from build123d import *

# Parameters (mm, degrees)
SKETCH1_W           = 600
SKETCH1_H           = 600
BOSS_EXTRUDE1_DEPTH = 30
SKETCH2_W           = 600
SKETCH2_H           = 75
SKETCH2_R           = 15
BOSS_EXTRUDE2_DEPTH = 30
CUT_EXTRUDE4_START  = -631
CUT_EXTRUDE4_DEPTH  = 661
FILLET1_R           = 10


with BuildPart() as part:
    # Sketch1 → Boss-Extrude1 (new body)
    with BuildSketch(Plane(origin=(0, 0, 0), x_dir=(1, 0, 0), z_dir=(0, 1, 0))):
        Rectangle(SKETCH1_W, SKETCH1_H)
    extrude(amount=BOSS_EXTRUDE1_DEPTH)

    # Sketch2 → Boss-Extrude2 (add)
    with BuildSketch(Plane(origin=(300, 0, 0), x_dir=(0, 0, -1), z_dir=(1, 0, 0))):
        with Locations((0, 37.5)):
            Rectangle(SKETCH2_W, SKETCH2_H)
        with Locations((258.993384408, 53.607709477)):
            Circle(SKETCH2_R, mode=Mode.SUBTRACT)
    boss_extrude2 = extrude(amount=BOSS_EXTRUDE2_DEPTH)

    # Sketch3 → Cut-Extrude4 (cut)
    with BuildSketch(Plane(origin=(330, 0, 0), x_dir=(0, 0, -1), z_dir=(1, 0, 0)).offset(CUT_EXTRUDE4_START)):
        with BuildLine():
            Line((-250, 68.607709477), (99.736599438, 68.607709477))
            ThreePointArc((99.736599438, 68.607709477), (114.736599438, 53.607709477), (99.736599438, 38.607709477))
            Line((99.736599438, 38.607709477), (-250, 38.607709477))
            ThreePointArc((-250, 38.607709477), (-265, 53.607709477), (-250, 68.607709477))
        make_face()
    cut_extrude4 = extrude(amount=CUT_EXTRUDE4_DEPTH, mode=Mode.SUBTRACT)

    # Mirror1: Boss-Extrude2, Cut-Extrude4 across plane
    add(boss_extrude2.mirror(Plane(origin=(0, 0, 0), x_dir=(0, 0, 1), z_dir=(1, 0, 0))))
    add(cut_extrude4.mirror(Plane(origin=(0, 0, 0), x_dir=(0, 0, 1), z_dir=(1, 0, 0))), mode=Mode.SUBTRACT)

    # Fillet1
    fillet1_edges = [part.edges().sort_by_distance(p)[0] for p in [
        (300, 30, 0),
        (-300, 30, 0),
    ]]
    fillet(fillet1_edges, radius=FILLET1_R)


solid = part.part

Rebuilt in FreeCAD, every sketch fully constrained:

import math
import FreeCAD as App
import Part
import Sketcher
Q = App.Units.Quantity


def edges_at(feature, points):
    """Names of the edges that pass closest to the given points."""
    edges = feature.Shape.Edges
    near = lambda p: min(range(len(edges)), key=lambda i: edges[i].distToShape(Part.Vertex(*p))[0])
    return sorted({f"Edge{near(p) + 1}" for p in points})


def add_polygon(sketch, points):
    """Adds a closed chain of lines whose ends are joined by coincident constraints."""
    first, n = sketch.GeometryCount, len(points)
    for a, b in zip(points, points[1:] + points[:1]):
        sketch.addGeometry(Part.LineSegment(App.Vector(*a, 0), App.Vector(*b, 0)), False)
    for i in range(n):
        sketch.addConstraint(Sketcher.Constraint("Coincident", first + i, 2, first + (i + 1) % n, 1))

doc = App.newDocument("Part")
params = doc.addObject("Spreadsheet::Sheet", "Params")
for row, (alias, value) in enumerate([
    ("sketch1_width", "600 mm"),
    ("pad1_length", "30 mm"),
    ("sketch2_diameter", "30 mm"),
    ("sketch2_width", "75 mm"),
    ("sketch2_height", "600 mm"),
    ("pad2_length", "30 mm"),
    ("sketch3_radius", "15 mm"),
    ("pocket1_length", "661 mm"),
    ("fillet_radius", "10 mm"),
], start=1):
    params.set(f"A{row}", alias)
    params.set(f"B{row}", "=" + value)
    params.setAlias(f"B{row}", alias)

body = doc.addObject("PartDesign::Body", "Body")

# Sketch on XZ plane
sketch1 = doc.addObject("Sketcher::SketchObject", "Sketch")
body.addObject(sketch1)
sketch1.AttachmentSupport = (doc.XZ_Plane, [""])
sketch1.MapMode = "FlatFace"
add_polygon(sketch1, [(-300, -300), (-300, 300), (300, 300), (300, -300)])  # lines 0-3
sketch1.addConstraint(Sketcher.Constraint("Vertical", 0))
sketch1.addConstraint(Sketcher.Constraint("Horizontal", 1))
sketch1.addConstraint(Sketcher.Constraint("Vertical", 2))
sketch1.addConstraint(Sketcher.Constraint("Horizontal", 3))
sketch1.addConstraint(Sketcher.Constraint("Symmetric", 0, 2, 2, 2, -1, 1))
sketch1.addConstraint(Sketcher.Constraint("Equal", 3, 0))
sketch1.addConstraint(Sketcher.Constraint("DistanceX", 1, 1, 1, 2, Q("600 mm")))
sketch1.setExpression("Constraints[10]", "Params.sketch1_width")
pad1 = doc.addObject("PartDesign::Pad", "Pad")
body.addObject(pad1)
pad1.Profile = sketch1
pad1.setExpression("Length", "Params.pad1_length")
pad1.Reversed = True

# Sketch on YZ plane
sketch2 = doc.addObject("Sketcher::SketchObject", "Sketch001")
body.addObject(sketch2)
sketch2.AttachmentSupport = (doc.YZ_Plane, [""])
sketch2.MapMode = "FlatFace"
sketch2.AttachmentOffset = App.Placement(App.Vector(0, 0, 300), App.Rotation())
add_polygon(sketch2, [(75, 300), (0, 300), (0, -300), (75, -300)])  # lines 0-3
sketch2.addGeometry(Part.Circle(App.Vector(54, -259, 0), App.Vector(0, 0, 1), 15), False)  # 4
sketch2.addConstraint(Sketcher.Constraint("Horizontal", 0))
sketch2.addConstraint(Sketcher.Constraint("Vertical", 1))
sketch2.addConstraint(Sketcher.Constraint("Horizontal", 2))
sketch2.addConstraint(Sketcher.Constraint("Vertical", 3))
sketch2.addConstraint(Sketcher.Constraint("Symmetric", 0, 2, 1, 2, -1, 1))
sketch2.addConstraint(Sketcher.Constraint("Diameter", 4, Q("30 mm")))
sketch2.addConstraint(Sketcher.Constraint("DistanceX", 0, 2, 0, 1, Q("75 mm")))
sketch2.addConstraint(Sketcher.Constraint("DistanceY", 1, 2, 1, 1, Q("600 mm")))
sketch2.addConstraint(Sketcher.Constraint("DistanceX", -1, 1, 4, 3, Q("53.607709 mm")))
sketch2.addConstraint(Sketcher.Constraint("DistanceY", 4, 3, -1, 1, Q("258.993384 mm")))
sketch2.setExpression("Constraints[9]", "Params.sketch2_diameter")
sketch2.setExpression("Constraints[10]", "Params.sketch2_width")
sketch2.setExpression("Constraints[11]", "Params.sketch2_height")
pad2 = doc.addObject("PartDesign::Pad", "Pad001")
body.addObject(pad2)
pad2.Profile = sketch2
pad2.setExpression("Length", "Params.pad2_length")

# Sketch on YZ plane
sketch3 = doc.addObject("Sketcher::SketchObject", "Sketch002")
body.addObject(sketch3)
sketch3.AttachmentSupport = (doc.YZ_Plane, [""])
sketch3.MapMode = "FlatFace"
sketch3.AttachmentOffset = App.Placement(App.Vector(0, 0, -301), App.Rotation())
sketch3.addGeometry(Part.LineSegment(App.Vector(69, -100, 0), App.Vector(69, 250, 0)), False)
sketch3.addGeometry(Part.ArcOfCircle(Part.Circle(App.Vector(54, 250, 0), App.Vector(0, 0, 1), 15), math.radians(0), math.radians(180)), False)
sketch3.addGeometry(Part.LineSegment(App.Vector(39, 250, 0), App.Vector(39, -100, 0)), False)
sketch3.addGeometry(Part.ArcOfCircle(Part.Circle(App.Vector(54, -100, 0), App.Vector(0, 0, 1), 15), math.radians(180), math.radians(360)), False)
sketch3.addConstraint(Sketcher.Constraint("Tangent", 0, 2, 1, 1))
sketch3.addConstraint(Sketcher.Constraint("Tangent", 1, 2, 2, 1))
sketch3.addConstraint(Sketcher.Constraint("Tangent", 2, 2, 3, 1))
sketch3.addConstraint(Sketcher.Constraint("Tangent", 3, 2, 0, 1))
sketch3.addConstraint(Sketcher.Constraint("Vertical", 0))
sketch3.addConstraint(Sketcher.Constraint("Vertical", 2))
sketch3.addConstraint(Sketcher.Constraint("Radius", 1, Q("15 mm")))
sketch3.addConstraint(Sketcher.Constraint("DistanceY", -1, 1, 1, 3, Q("250 mm")))
sketch3.addConstraint(Sketcher.Constraint("DistanceY", 0, 1, 0, 2, Q("349.736599 mm")))
sketch3.addConstraint(Sketcher.Constraint("DistanceX", -1, 1, 1, 3, Q("53.607709 mm")))
sketch3.setExpression("Constraints[6]", "Params.sketch3_radius")
pocket1 = doc.addObject("PartDesign::Pocket", "Pocket")
body.addObject(pocket1)
pocket1.Profile = sketch3
pocket1.setExpression("Length", "Params.pocket1_length")
pocket1.Reversed = True
doc.recompute()

mirrored = doc.addObject("PartDesign::Mirrored", "Mirrored")
body.addObject(mirrored)
mirrored.Originals = [pad2, pocket1]
mirrored.MirrorPlane = (doc.YZ_Plane, [""])
body.Tip = mirrored
doc.recompute()

fillet = doc.addObject("PartDesign::Fillet", "Fillet")
body.addObject(fillet)
fillet.Base = (mirrored, edges_at(mirrored, [(300, 30, 0), (-300, 30, 0)]))
fillet.setExpression("Radius", "Params.fillet_radius")

doc.recompute()
